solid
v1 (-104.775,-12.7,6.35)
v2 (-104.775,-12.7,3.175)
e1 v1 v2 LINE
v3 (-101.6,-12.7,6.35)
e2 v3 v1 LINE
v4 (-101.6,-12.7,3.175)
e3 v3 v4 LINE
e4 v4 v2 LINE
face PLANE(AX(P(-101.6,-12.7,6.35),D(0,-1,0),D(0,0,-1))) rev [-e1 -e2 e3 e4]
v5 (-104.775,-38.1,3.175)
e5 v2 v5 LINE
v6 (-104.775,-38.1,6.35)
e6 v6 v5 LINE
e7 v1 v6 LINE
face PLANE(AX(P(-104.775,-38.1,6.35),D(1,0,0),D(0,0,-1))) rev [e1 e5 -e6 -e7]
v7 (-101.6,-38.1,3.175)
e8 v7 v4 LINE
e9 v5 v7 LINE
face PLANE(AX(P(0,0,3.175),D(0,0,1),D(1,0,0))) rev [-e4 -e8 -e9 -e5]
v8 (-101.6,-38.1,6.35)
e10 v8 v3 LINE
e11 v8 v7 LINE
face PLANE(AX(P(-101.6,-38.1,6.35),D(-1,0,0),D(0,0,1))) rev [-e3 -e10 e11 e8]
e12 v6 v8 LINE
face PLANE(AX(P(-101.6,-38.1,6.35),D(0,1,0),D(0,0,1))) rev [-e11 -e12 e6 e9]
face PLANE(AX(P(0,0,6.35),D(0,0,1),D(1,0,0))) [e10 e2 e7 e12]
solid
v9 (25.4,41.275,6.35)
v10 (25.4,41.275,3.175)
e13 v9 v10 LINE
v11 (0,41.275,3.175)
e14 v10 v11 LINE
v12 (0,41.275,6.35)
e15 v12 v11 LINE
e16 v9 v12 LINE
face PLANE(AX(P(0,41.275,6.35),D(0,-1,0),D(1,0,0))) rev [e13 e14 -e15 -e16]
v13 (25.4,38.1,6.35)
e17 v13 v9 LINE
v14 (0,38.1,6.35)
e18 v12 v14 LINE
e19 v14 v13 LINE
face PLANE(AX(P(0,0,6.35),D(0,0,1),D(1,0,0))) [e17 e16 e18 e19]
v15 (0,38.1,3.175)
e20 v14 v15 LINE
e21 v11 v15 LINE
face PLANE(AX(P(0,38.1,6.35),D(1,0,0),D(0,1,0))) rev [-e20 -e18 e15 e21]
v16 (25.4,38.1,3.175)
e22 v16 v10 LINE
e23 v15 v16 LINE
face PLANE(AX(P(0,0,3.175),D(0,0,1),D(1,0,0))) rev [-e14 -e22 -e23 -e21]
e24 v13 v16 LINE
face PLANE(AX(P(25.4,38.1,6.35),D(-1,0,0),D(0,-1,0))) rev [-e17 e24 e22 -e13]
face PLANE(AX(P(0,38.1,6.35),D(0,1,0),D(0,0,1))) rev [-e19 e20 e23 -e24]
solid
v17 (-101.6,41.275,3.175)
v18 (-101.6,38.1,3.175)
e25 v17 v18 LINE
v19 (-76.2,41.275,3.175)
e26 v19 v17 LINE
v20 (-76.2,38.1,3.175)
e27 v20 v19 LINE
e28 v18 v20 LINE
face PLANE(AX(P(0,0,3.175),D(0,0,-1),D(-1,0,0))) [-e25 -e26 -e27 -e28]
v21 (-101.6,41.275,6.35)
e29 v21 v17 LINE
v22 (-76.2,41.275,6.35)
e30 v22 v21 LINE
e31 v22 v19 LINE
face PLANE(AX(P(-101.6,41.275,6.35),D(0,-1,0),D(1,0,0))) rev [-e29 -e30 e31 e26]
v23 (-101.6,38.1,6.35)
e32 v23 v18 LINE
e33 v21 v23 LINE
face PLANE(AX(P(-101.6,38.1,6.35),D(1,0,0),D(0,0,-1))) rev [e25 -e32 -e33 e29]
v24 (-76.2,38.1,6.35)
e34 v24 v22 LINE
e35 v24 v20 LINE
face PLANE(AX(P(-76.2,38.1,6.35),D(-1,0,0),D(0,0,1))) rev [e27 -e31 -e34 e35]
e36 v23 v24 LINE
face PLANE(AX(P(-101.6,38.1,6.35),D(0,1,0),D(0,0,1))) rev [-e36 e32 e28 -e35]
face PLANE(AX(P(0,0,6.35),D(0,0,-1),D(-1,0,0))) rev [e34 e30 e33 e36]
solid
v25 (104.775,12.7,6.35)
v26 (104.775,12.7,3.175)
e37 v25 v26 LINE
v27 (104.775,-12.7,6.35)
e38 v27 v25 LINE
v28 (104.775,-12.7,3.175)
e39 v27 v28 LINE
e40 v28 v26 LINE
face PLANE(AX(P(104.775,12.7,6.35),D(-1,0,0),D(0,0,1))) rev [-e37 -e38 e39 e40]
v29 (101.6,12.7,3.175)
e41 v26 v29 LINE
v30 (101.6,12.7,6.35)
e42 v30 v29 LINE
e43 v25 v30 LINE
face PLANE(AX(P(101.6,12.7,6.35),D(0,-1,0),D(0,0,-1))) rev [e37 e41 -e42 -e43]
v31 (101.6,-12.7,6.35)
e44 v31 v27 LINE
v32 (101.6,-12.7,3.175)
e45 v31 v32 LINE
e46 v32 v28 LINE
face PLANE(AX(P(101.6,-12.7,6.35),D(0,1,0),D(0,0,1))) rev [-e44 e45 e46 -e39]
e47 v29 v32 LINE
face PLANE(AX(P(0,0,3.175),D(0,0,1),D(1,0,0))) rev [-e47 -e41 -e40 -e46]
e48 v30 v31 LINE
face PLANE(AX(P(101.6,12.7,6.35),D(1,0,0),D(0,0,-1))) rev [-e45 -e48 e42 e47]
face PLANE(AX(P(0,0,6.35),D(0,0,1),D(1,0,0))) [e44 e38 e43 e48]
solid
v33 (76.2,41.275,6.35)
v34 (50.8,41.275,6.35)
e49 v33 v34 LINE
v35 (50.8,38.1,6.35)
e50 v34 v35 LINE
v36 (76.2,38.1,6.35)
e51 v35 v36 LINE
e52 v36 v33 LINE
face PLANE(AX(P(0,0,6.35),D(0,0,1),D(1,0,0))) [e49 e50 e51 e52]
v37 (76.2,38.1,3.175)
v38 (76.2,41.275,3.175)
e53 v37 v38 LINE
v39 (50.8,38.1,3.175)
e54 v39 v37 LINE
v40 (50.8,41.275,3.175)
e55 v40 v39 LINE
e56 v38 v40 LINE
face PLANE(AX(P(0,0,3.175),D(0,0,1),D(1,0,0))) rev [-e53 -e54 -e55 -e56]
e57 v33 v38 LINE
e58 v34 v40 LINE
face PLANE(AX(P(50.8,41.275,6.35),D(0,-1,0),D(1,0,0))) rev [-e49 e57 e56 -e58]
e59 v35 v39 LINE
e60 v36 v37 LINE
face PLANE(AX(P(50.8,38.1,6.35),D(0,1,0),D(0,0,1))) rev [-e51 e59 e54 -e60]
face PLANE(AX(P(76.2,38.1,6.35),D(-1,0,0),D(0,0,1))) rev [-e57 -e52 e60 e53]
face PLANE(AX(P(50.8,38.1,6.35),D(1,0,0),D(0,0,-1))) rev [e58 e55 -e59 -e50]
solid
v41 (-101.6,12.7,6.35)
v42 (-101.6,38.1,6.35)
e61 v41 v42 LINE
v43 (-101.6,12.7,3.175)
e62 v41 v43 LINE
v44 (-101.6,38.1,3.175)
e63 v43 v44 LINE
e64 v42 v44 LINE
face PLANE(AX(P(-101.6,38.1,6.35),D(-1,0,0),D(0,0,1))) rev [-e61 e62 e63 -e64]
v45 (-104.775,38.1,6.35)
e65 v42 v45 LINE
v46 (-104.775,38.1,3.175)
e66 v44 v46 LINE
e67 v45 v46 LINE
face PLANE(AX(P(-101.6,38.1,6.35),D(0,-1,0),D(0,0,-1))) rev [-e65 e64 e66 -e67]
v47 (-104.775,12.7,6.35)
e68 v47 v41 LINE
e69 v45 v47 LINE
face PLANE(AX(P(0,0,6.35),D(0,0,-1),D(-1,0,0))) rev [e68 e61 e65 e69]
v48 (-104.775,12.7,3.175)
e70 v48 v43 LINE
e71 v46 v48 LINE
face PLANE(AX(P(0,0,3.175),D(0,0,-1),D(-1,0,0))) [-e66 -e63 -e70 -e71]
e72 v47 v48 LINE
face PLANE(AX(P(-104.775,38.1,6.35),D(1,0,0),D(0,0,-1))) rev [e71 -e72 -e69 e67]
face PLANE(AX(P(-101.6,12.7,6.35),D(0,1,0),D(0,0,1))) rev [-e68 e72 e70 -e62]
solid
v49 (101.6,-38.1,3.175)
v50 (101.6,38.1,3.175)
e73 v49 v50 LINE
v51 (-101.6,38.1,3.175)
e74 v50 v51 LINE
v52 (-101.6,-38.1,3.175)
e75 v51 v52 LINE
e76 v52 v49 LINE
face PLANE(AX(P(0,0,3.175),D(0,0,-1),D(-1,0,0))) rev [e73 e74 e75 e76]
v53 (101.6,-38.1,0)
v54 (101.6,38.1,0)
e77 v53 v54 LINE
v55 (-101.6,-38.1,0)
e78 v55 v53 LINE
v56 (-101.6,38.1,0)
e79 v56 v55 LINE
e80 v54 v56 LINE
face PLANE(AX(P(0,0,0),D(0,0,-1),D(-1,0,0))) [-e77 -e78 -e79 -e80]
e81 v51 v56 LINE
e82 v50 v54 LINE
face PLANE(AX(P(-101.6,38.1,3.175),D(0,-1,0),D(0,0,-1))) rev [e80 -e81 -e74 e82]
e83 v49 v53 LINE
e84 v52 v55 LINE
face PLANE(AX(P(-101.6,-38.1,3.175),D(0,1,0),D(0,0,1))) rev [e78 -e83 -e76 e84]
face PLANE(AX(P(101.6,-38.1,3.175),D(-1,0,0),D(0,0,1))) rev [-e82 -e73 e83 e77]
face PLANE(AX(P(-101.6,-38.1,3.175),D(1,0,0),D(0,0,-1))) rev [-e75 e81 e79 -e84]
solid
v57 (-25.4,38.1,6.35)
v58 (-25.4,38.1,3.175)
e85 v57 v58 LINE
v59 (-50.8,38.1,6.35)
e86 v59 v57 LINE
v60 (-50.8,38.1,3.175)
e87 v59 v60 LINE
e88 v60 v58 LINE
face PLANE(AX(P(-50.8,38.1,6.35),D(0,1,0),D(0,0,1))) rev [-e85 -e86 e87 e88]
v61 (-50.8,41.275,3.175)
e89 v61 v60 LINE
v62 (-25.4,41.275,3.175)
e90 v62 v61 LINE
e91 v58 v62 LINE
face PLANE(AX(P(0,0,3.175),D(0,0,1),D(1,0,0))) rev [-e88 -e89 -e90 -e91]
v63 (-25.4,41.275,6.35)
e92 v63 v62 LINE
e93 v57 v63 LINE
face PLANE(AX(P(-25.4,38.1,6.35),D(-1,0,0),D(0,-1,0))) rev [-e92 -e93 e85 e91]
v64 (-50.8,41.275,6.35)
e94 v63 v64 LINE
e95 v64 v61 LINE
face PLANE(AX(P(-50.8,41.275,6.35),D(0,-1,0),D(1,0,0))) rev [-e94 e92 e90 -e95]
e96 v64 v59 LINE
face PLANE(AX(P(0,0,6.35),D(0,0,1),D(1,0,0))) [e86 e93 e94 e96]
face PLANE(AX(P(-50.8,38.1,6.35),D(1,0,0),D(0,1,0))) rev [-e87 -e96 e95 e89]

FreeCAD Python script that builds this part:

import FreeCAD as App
import Part
import Sketcher

V = App.Vector
Q = App.Units.Quantity


def add_polygon(sketch, points):
    """Adds a closed chain of lines whose ends are joined by coincident constraints."""
    first, n = sketch.GeometryCount, len(points)
    for a, b in zip(points, points[1:] + points[:1]):
        sketch.addGeometry(Part.LineSegment(App.Vector(*a, 0), App.Vector(*b, 0)), False)
    for i in range(n):
        sketch.addConstraint(Sketcher.Constraint("Coincident", first + i, 2, first + (i + 1) % n, 1))

doc = App.newDocument("Part")
body = doc.addObject("PartDesign::Body", "Body")

# Sketch on XY plane
sketch1 = body.newObject("Sketcher::SketchObject", "Sketch")
sketch1.AttachmentSupport = (doc.getObject("XY_Plane"), [""])
sketch1.MapMode = "FlatFace"
add_polygon(sketch1, [(-102, 38), (-102, -38), (102, -38), (102, 38)])  # lines 0-3
sketch1.addConstraint([
    Sketcher.Constraint("Vertical", 0),
    Sketcher.Constraint("Horizontal", 1),
    Sketcher.Constraint("Vertical", 2),
    Sketcher.Constraint("Horizontal", 3),
    Sketcher.Constraint("Symmetric", 0, 2, 2, 2, -1, 1),
    Sketcher.Constraint("DistanceX", 1, 1, 1, 2, Q("8 in")),
    Sketcher.Constraint("DistanceY", 0, 2, 0, 1, Q("3 in")),
])
pad1 = body.newObject("PartDesign::Pad", "Pad")
pad1.Profile = sketch1
pad1.Length = Q("0.125 in")
body2 = doc.addObject("PartDesign::Body", "Body001")

# Sketch on XY plane
sketch2 = body2.newObject("Sketcher::SketchObject", "Sketch001")
sketch2.AttachmentSupport = (doc.getObject("XY_Plane001"), [""])
sketch2.MapMode = "FlatFace"
sketch2.AttachmentOffset = App.Placement(V(0, 0, 0.125 * 25.4), App.Rotation())
add_polygon(sketch2, [(-50.8, 41.3), (-50.8, 38.1), (-25.4, 38.1), (-25.4, 41.3)])  # lines 0-3
sketch2.addConstraint([
    Sketcher.Constraint("Vertical", 0),
    Sketcher.Constraint("Horizontal", 1),
    Sketcher.Constraint("Vertical", 2),
    Sketcher.Constraint("Horizontal", 3),
    Sketcher.Constraint("DistanceX", 1, 1, 1, 2, Q("1 in")),
    Sketcher.Constraint("DistanceX", 0, 2, -1, 1, Q("2 in")),
    Sketcher.Constraint("DistanceY", -1, 1, 0, 2, Q("1.5 in")),
    Sketcher.Constraint("DistanceY", 0, 2, 0, 1, Q("0.125 in")),
])
pad2 = body2.newObject("PartDesign::Pad", "Pad001")
pad2.Profile = sketch2
pad2.Length = Q("0.125 in")
body3 = doc.addObject("PartDesign::Body", "Body002")

# Sketch on XY plane
sketch3 = body3.newObject("Sketcher::SketchObject", "Sketch002")
sketch3.AttachmentSupport = (doc.getObject("XY_Plane002"), [""])
sketch3.MapMode = "FlatFace"
sketch3.AttachmentOffset = App.Placement(V(0, 0, 0.125 * 25.4), App.Rotation())
add_polygon(sketch3, [(-101.6, 41.3), (-101.6, 38.1), (-76.2, 38.1), (-76.2, 41.3)])  # lines 0-3
sketch3.addConstraint([
    Sketcher.Constraint("Vertical", 0),
    Sketcher.Constraint("Horizontal", 1),
    Sketcher.Constraint("Vertical", 2),
    Sketcher.Constraint("Horizontal", 3),
    Sketcher.Constraint("DistanceX", 1, 1, 1, 2, Q("1 in")),
    Sketcher.Constraint("DistanceX", 0, 2, -1, 1, Q("4 in")),
    Sketcher.Constraint("DistanceY", -1, 1, 0, 2, Q("1.5 in")),
    Sketcher.Constraint("DistanceY", 0, 2, 0, 1, Q("0.125 in")),
])
pad3 = body3.newObject("PartDesign::Pad", "Pad002")
pad3.Profile = sketch3
pad3.Length = Q("0.125 in")
body4 = doc.addObject("PartDesign::Body", "Body003")

# Sketch on XY plane
sketch4 = body4.newObject("Sketcher::SketchObject", "Sketch003")
sketch4.AttachmentSupport = (doc.getObject("XY_Plane003"), [""])
sketch4.MapMode = "FlatFace"
sketch4.AttachmentOffset = App.Placement(V(0, 0, 0.125 * 25.4), App.Rotation())
add_polygon(sketch4, [(0, 41.3), (0, 38.1), (25.4, 38.1), (25.4, 41.3)])  # lines 0-3
sketch4.addConstraint([
    Sketcher.Constraint("Vertical", 0),
    Sketcher.Constraint("Horizontal", 1),
    Sketcher.Constraint("Vertical", 2),
    Sketcher.Constraint("Horizontal", 3),
    Sketcher.Constraint("PointOnObject", 0, 2, -2),
    Sketcher.Constraint("DistanceX", 1, 1, 1, 2, Q("1 in")),
    Sketcher.Constraint("DistanceY", -1, 1, 0, 2, Q("1.5 in")),
    Sketcher.Constraint("DistanceY", 0, 2, 0, 1, Q("0.125 in")),
])
pad4 = body4.newObject("PartDesign::Pad", "Pad003")
pad4.Profile = sketch4
pad4.Length = Q("0.125 in")
body5 = doc.addObject("PartDesign::Body", "Body004")

# Sketch on XY plane
sketch5 = body5.newObject("Sketcher::SketchObject", "Sketch004")
sketch5.AttachmentSupport = (doc.getObject("XY_Plane004"), [""])
sketch5.MapMode = "FlatFace"
sketch5.AttachmentOffset = App.Placement(V(0, 0, 0.125 * 25.4), App.Rotation())
add_polygon(sketch5, [(50.8, 41.3), (50.8, 38.1), (76.2, 38.1), (76.2, 41.3)])  # lines 0-3
sketch5.addConstraint([
    Sketcher.Constraint("Vertical", 0),
    Sketcher.Constraint("Horizontal", 1),
    Sketcher.Constraint("Vertical", 2),
    Sketcher.Constraint("Horizontal", 3),
    Sketcher.Constraint("DistanceX", 1, 1, 1, 2, Q("1 in")),
    Sketcher.Constraint("DistanceX", -1, 1, 0, 2, Q("2 in")),
    Sketcher.Constraint("DistanceY", -1, 1, 0, 2, Q("1.5 in")),
    Sketcher.Constraint("DistanceY", 0, 2, 0, 1, Q("0.125 in")),
])
pad5 = body5.newObject("PartDesign::Pad", "Pad004")
pad5.Profile = sketch5
pad5.Length = Q("0.125 in")
body6 = doc.addObject("PartDesign::Body", "Body005")

# Sketch on XY plane
sketch6 = body6.newObject("Sketcher::SketchObject", "Sketch005")
sketch6.AttachmentSupport = (doc.getObject("XY_Plane005"), [""])
sketch6.MapMode = "FlatFace"
sketch6.AttachmentOffset = App.Placement(V(0, 0, 0.125 * 25.4), App.Rotation())
add_polygon(sketch6, [(-104.8, -12.7), (-104.8, -38.1), (-101.6, -38.1), (-101.6, -12.7)])  # lines 0-3
sketch6.addConstraint([
    Sketcher.Constraint("Vertical", 0),
    Sketcher.Constraint("Horizontal", 1),
    Sketcher.Constraint("Vertical", 2),
    Sketcher.Constraint("Horizontal", 3),
    Sketcher.Constraint("DistanceY", 0, 2, 0, 1, Q("1 in")),
    Sketcher.Constraint("DistanceX", 1, 2, -1, 1, Q("4 in")),
    Sketcher.Constraint("DistanceY", 0, 2, -1, 1, Q("1.5 in")),
    Sketcher.Constraint("DistanceX", 1, 1, 1, 2, Q("0.125 in")),
])
pad6 = body6.newObject("PartDesign::Pad", "Pad005")
pad6.Profile = sketch6
pad6.Length = Q("0.125 in")
body7 = doc.addObject("PartDesign::Body", "Body006")

# Sketch on XY plane
sketch7 = body7.newObject("Sketcher::SketchObject", "Sketch006")
sketch7.AttachmentSupport = (doc.getObject("XY_Plane006"), [""])
sketch7.MapMode = "FlatFace"
sketch7.AttachmentOffset = App.Placement(V(0, 0, 0.125 * 25.4), App.Rotation())
add_polygon(sketch7, [(-104.8, 38.1), (-104.8, 12.7), (-101.6, 12.7), (-101.6, 38.1)])  # lines 0-3
sketch7.addConstraint([
    Sketcher.Constraint("Vertical", 0),
    Sketcher.Constraint("Horizontal", 1),
    Sketcher.Constraint("Vertical", 2),
    Sketcher.Constraint("Horizontal", 3),
    Sketcher.Constraint("DistanceY", 0, 2, 0, 1, Q("1 in")),
    Sketcher.Constraint("DistanceX", 1, 2, -1, 1, Q("4 in")),
    Sketcher.Constraint("DistanceY", -1, 1, 0, 2, Q("0.5 in")),
    Sketcher.Constraint("DistanceX", 1, 1, 1, 2, Q("0.125 in")),
])
pad7 = body7.newObject("PartDesign::Pad", "Pad006")
pad7.Profile = sketch7
pad7.Length = Q("0.125 in")
body8 = doc.addObject("PartDesign::Body", "Body007")

# Sketch on XY plane
sketch8 = body8.newObject("Sketcher::SketchObject", "Sketch007")
sketch8.AttachmentSupport = (doc.getObject("XY_Plane007"), [""])
sketch8.MapMode = "FlatFace"
sketch8.AttachmentOffset = App.Placement(V(0, 0, 0.125 * 25.4), App.Rotation())
add_polygon(sketch8, [(101.6, 12.7), (101.6, -12.7), (104.8, -12.7), (104.8, 12.7)])  # lines 0-3
sketch8.addConstraint([
    Sketcher.Constraint("Vertical", 0),
    Sketcher.Constraint("Horizontal", 1),
    Sketcher.Constraint("Vertical", 2),
    Sketcher.Constraint("Horizontal", 3),
    Sketcher.Constraint("DistanceY", 0, 2, 0, 1, Q("1 in")),
    Sketcher.Constraint("DistanceX", -1, 1, 0, 2, Q("4 in")),
    Sketcher.Constraint("DistanceY", 0, 2, -1, 1, Q("0.5 in")),
    Sketcher.Constraint("DistanceX", 1, 1, 1, 2, Q("0.125 in")),
])
pad8 = body8.newObject("PartDesign::Pad", "Pad007")
pad8.Profile = sketch8
pad8.Length = Q("0.125 in")

doc.recompute()
